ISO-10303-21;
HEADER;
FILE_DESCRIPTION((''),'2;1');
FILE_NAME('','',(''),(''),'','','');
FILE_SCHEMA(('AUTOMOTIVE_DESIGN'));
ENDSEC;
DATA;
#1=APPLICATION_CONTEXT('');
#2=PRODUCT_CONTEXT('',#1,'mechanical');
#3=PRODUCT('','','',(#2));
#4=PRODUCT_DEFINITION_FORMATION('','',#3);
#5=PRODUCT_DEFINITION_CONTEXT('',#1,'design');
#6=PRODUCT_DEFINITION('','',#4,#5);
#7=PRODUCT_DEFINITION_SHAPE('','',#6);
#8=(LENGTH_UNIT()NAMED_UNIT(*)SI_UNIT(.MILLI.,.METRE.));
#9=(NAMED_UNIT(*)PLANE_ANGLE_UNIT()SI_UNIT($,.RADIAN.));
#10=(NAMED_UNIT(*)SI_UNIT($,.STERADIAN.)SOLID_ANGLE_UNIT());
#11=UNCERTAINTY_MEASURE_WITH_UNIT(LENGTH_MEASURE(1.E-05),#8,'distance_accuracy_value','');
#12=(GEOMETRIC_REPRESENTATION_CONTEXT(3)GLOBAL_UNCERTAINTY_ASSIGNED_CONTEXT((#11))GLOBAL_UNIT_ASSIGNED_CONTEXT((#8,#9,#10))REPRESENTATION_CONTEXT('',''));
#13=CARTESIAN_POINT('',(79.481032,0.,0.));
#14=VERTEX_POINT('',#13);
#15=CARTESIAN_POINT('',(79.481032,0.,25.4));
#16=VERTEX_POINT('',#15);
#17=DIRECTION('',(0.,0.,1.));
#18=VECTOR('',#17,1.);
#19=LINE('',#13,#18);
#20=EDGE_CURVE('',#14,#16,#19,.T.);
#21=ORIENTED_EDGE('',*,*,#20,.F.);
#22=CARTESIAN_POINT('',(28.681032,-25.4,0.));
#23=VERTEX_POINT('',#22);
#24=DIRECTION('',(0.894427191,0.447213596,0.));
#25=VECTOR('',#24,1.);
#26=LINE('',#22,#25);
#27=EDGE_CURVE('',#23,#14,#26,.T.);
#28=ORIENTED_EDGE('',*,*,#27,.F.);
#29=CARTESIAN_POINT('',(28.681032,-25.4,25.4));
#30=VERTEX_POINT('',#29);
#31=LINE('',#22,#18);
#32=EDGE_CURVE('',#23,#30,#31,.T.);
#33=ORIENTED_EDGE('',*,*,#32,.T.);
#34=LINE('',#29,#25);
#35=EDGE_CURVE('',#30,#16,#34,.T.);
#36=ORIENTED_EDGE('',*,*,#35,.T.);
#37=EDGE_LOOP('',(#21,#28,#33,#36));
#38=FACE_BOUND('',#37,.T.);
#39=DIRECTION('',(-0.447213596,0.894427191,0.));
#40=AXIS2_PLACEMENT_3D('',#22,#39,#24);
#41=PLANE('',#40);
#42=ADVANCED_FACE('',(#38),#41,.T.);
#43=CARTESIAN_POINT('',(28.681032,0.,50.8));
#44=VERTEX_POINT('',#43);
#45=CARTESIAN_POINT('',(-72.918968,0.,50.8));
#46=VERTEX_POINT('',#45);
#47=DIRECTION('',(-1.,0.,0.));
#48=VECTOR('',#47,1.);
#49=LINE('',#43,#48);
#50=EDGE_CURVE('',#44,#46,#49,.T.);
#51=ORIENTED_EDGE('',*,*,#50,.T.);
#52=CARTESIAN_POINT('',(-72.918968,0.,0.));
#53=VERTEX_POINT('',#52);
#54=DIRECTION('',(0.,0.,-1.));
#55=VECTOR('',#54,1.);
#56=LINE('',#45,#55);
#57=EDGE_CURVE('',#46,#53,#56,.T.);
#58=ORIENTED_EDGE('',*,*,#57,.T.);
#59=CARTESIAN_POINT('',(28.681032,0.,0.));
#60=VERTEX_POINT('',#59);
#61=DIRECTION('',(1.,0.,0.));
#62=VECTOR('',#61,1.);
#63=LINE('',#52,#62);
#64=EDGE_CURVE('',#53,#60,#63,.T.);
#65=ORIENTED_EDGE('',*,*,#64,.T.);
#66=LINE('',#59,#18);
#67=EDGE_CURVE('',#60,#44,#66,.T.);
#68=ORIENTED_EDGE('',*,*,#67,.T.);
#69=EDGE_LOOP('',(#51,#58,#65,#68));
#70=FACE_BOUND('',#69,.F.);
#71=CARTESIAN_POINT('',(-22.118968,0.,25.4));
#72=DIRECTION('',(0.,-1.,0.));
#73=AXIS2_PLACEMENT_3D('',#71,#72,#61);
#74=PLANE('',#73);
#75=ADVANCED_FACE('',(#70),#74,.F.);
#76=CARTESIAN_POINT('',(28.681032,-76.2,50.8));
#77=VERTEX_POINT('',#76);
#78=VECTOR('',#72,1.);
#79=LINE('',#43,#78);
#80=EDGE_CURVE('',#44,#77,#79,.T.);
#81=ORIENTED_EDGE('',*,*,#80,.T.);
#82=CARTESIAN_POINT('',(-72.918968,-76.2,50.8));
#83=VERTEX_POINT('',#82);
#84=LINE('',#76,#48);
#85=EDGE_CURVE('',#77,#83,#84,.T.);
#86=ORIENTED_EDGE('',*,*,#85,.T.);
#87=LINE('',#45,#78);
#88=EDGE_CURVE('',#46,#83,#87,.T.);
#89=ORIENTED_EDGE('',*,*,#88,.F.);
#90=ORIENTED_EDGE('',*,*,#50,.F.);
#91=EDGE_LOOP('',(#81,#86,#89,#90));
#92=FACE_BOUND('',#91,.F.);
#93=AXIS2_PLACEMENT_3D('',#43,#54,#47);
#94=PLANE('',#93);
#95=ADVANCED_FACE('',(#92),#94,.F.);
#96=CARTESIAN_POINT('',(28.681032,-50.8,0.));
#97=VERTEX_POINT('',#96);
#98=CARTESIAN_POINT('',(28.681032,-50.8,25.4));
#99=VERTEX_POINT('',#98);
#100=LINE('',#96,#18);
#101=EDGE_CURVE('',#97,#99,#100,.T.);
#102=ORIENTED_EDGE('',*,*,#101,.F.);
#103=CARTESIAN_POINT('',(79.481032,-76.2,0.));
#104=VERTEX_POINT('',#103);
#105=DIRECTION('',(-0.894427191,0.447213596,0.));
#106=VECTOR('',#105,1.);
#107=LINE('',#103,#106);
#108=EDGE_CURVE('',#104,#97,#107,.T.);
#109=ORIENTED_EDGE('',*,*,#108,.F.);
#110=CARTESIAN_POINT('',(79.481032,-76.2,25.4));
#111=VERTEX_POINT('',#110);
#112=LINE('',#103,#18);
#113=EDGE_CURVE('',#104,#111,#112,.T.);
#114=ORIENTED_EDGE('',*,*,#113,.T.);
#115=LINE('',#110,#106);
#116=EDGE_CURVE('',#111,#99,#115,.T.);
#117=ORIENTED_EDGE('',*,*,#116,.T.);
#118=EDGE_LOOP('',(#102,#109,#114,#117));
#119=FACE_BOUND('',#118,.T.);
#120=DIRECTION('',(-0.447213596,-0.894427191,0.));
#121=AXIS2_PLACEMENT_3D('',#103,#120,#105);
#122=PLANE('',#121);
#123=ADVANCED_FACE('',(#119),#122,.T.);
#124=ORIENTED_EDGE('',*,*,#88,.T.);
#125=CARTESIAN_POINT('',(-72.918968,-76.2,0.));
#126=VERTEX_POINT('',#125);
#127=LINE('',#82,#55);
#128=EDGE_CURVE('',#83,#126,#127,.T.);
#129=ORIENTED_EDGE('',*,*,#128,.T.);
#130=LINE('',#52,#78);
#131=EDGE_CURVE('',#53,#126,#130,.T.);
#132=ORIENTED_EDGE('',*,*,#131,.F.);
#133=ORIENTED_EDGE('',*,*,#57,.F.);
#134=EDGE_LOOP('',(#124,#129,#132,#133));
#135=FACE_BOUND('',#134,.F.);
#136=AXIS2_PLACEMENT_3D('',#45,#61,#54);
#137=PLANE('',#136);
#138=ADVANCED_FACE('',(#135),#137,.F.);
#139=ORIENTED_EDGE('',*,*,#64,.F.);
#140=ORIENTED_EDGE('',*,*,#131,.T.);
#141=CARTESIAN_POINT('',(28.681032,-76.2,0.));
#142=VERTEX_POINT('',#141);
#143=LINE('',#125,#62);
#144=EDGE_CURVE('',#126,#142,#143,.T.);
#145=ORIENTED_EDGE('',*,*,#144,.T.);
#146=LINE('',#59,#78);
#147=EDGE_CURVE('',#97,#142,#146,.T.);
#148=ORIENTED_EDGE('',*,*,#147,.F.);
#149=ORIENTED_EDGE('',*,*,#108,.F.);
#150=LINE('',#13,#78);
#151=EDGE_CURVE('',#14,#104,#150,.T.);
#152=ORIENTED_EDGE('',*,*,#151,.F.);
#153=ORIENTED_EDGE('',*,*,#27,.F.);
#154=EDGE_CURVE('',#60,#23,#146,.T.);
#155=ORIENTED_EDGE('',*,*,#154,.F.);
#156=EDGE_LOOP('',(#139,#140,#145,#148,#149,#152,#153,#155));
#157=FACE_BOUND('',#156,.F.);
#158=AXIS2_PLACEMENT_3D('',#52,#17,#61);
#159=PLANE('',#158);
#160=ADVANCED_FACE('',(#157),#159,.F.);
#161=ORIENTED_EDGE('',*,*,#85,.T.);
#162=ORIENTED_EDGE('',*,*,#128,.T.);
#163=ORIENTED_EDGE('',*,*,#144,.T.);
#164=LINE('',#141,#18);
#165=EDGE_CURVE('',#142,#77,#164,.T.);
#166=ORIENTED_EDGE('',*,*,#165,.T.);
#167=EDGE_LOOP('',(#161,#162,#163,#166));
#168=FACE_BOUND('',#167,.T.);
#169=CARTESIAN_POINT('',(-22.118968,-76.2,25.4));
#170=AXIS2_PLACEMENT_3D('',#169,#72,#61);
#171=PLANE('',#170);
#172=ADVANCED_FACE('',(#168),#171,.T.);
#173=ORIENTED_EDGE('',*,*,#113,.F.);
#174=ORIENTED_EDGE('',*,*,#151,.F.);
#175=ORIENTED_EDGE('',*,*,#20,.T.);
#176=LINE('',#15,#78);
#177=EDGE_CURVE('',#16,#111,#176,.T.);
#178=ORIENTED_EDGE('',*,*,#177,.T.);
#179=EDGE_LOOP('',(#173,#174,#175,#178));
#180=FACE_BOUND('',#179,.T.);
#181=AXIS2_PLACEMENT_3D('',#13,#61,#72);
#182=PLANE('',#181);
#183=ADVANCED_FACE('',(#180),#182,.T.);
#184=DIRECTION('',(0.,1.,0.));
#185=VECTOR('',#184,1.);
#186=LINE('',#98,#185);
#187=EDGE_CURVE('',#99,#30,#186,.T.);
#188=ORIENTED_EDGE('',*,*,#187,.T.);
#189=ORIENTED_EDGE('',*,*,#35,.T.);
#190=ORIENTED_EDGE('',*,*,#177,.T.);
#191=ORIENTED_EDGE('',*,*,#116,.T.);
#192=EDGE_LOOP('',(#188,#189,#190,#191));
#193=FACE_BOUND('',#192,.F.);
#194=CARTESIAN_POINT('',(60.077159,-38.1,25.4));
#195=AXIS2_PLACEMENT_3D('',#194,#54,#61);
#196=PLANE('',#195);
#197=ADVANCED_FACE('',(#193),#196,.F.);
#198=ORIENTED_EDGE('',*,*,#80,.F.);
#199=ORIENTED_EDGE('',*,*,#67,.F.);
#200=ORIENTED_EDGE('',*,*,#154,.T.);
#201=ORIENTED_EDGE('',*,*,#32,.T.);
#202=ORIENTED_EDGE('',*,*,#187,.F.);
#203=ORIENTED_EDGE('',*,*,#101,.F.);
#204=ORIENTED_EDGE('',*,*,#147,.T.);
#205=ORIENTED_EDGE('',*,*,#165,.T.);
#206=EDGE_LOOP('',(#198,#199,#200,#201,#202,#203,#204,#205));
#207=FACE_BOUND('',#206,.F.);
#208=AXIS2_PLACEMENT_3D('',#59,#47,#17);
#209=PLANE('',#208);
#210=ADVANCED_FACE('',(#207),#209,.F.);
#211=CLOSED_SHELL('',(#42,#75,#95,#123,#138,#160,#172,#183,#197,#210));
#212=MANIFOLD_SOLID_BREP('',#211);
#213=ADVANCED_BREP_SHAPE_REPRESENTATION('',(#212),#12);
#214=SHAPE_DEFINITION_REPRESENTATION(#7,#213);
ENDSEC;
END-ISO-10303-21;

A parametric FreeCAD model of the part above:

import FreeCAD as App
import Part
import Sketcher
Q = App.Units.Quantity

doc = App.newDocument("Part")
params = doc.addObject("Spreadsheet::Sheet", "Params")
for row, (alias, value) in enumerate([
    ("sketch1_width", "4 in"),
    ("sketch1_height", "2 in"),
    ("pad1_length", "3 in"),
    ("sketch2_height", "3 in"),
    ("sketch2_height2", "1 in"),
    ("pad2_length", "1 in"),
], start=1):
    params.set(f"A{row}", alias)
    params.set(f"B{row}", "=" + value)
    params.setAlias(f"B{row}", alias)

body = doc.addObject("PartDesign::Body", "Body")

sketch1 = body.newObject("Sketcher::SketchObject", "Sketch")
sketch1.AttachmentSupport = (doc.getObject("XZ_Plane"), [""])
sketch1.MapMode = "FlatFace"
sketch1.addGeometry([
    Part.LineSegment(App.Vector(-73, 51, 0), App.Vector(-73, 0, 0)),
    Part.LineSegment(App.Vector(-73, 0, 0), App.Vector(29, 0, 0)),
    Part.LineSegment(App.Vector(29, 0, 0), App.Vector(29, 51, 0)),
    Part.LineSegment(App.Vector(29, 51, 0), App.Vector(-73, 51, 0)),
], False)
sketch1.addConstraint([
    Sketcher.Constraint("Coincident", 0, 2, 1, 1),
    Sketcher.Constraint("Coincident", 1, 2, 2, 1),
    Sketcher.Constraint("Coincident", 2, 2, 3, 1),
    Sketcher.Constraint("Coincident", 3, 2, 0, 1),
    Sketcher.Constraint("Vertical", 0),
    Sketcher.Constraint("Horizontal", 1),
    Sketcher.Constraint("Vertical", 2),
    Sketcher.Constraint("Horizontal", 3),
    Sketcher.Constraint("PointOnObject", 0, 2, -1),
    Sketcher.Constraint("DistanceX", 1, 1, 1, 2, Q("4 in")),
    Sketcher.Constraint("DistanceY", 0, 2, 0, 1, Q("2 in")),
    Sketcher.Constraint("DistanceX", 0, 2, -1, 1, 72.918968),
])
sketch1.setExpression("Constraints[9]", "Params.sketch1_width")
sketch1.setExpression("Constraints[10]", "Params.sketch1_height")
pad1 = body.newObject("PartDesign::Pad", "Pad")
pad1.Profile = sketch1
pad1.setExpression("Length", "Params.pad1_length")

sketch2 = body.newObject("Sketcher::SketchObject", "Sketch001")
sketch2.AttachmentSupport = (doc.getObject("XY_Plane"), [""])
sketch2.MapMode = "FlatFace"
sketch2.addGeometry([
    Part.LineSegment(App.Vector(79, 0, 0), App.Vector(79, -76, 0)),
    Part.LineSegment(App.Vector(79, -76, 0), App.Vector(29, -51, 0)),
    Part.LineSegment(App.Vector(29, -51, 0), App.Vector(29, -25, 0)),
    Part.LineSegment(App.Vector(29, -25, 0), App.Vector(79, 0, 0)),
], False)
sketch2.addConstraint([
    Sketcher.Constraint("Coincident", 0, 2, 1, 1),
    Sketcher.Constraint("Coincident", 1, 2, 2, 1),
    Sketcher.Constraint("Coincident", 2, 2, 3, 1),
    Sketcher.Constraint("Coincident", 3, 2, 0, 1),
    Sketcher.Constraint("Vertical", 0),
    Sketcher.Constraint("Vertical", 2),
    Sketcher.Constraint("PointOnObject", 3, 2, -1),
    Sketcher.Constraint("Equal", 1, 3),
    Sketcher.Constraint("DistanceY", 0, 2, 0, 1, Q("3 in")),
    Sketcher.Constraint("DistanceY", 2, 1, 2, 2, Q("1 in")),
    Sketcher.Constraint("DistanceX", 1, 2, 0, 2, Q("2 in")),
    Sketcher.Constraint("DistanceX", -1, 1, 0, 2, 79.481032),
])
sketch2.setExpression("Constraints[8]", "Params.sketch2_height")
sketch2.setExpression("Constraints[9]", "Params.sketch2_height2")
pad2 = body.newObject("PartDesign::Pad", "Pad001")
pad2.Profile = sketch2
pad2.setExpression("Length", "Params.pad2_length")

doc.recompute()
